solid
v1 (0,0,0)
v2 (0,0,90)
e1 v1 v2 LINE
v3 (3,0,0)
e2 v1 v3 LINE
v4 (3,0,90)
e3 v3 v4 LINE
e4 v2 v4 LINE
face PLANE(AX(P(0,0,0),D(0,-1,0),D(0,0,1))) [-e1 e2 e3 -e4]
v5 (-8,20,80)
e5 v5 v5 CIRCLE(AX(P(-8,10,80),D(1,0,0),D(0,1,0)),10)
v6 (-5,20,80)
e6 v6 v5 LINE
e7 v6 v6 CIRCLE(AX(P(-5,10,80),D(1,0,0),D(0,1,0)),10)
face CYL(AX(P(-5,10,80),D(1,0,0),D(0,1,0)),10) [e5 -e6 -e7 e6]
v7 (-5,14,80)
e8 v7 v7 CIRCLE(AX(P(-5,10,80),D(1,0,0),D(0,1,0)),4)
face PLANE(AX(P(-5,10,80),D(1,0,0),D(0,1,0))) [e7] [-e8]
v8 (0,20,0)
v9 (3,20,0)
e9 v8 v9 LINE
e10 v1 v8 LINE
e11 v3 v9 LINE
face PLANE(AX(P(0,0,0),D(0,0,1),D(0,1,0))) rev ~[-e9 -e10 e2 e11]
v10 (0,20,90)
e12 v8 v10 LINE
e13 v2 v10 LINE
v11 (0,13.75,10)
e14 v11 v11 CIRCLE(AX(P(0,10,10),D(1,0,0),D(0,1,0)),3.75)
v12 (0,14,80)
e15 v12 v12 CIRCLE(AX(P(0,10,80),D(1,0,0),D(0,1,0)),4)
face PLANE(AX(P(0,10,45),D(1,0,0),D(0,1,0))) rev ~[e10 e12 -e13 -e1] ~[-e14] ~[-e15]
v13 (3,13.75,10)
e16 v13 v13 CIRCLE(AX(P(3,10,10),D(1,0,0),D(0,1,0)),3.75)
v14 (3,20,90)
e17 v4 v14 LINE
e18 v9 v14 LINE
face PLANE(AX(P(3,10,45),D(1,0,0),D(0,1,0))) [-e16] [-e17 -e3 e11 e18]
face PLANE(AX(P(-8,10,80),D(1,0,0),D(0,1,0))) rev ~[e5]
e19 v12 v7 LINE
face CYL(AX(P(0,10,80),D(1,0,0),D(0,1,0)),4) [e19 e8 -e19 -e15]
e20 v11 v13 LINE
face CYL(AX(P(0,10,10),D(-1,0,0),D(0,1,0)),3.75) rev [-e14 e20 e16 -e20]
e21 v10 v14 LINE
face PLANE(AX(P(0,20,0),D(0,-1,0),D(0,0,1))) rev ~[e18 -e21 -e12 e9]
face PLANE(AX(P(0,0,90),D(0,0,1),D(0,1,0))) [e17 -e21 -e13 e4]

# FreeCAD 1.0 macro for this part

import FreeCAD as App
import Part
import Sketcher
from FreeCAD import Vector
Q = App.Units.Quantity

doc = App.newDocument("Part")
params = doc.addObject("Spreadsheet::Sheet", "Params")
for row, (alias, value) in enumerate([
    ("sketch1_diameter", "7.5 mm"),
    ("sketch1_width", "20 mm"),
    ("sketch1_height", "90 mm"),
    ("pad1_length", "3 mm"),
    ("sketch2_diameter", "8 mm"),
    ("pad2_length", "5 mm"),
    ("sketch3_diameter", "20 mm"),
    ("pad3_length", "3 mm"),
], start=1):
    params.set(f"A{row}", alias)
    params.set(f"B{row}", "=" + value)
    params.setAlias(f"B{row}", alias)

body = doc.addObject("PartDesign::Body", "Body")

# Sketch on YZ plane
sketch1 = body.newObject("Sketcher::SketchObject", "Sketch")
sketch1.AttachmentSupport = (doc.getObject("YZ_Plane"), [""])
sketch1.MapMode = "FlatFace"
sketch1.addGeometry([
    Part.LineSegment(Vector(0, 90, 0), Vector(0, 0, 0)),  # 0
    Part.LineSegment(Vector(0, 0, 0), Vector(20, 0, 0)),  # 1
    Part.LineSegment(Vector(20, 0, 0), Vector(20, 90, 0)),  # 2
    Part.LineSegment(Vector(20, 90, 0), Vector(0, 90, 0)),  # 3
    Part.Circle(Vector(10, 10, 0), Vector(0, 0, 1), 3.8),  # 4
], False)
sketch1.addConstraint([
    Sketcher.Constraint("Coincident", 0, 2, 1, 1),
    Sketcher.Constraint("Coincident", 1, 2, 2, 1),
    Sketcher.Constraint("Coincident", 2, 2, 3, 1),
    Sketcher.Constraint("Coincident", 3, 2, 0, 1),
    Sketcher.Constraint("Vertical", 0),
    Sketcher.Constraint("Horizontal", 1),
    Sketcher.Constraint("Vertical", 2),
    Sketcher.Constraint("Horizontal", 3),
    Sketcher.Constraint("Coincident", 0, 2, -1, 1),
    Sketcher.Constraint("Diameter", 4, Q("7.5 mm")),
    Sketcher.Constraint("DistanceX", 1, 1, 1, 2, Q("20 mm")),
    Sketcher.Constraint("DistanceY", 0, 2, 0, 1, Q("90 mm")),
    Sketcher.Constraint("DistanceX", -1, 1, 4, 3, Q("10 mm")),
    Sketcher.Constraint("DistanceY", -1, 1, 4, 3, Q("10 mm")),
])
sketch1.setExpression("Constraints[9]", "Params.sketch1_diameter")
sketch1.setExpression("Constraints[10]", "Params.sketch1_width")
sketch1.setExpression("Constraints[11]", "Params.sketch1_height")
pad1 = body.newObject("PartDesign::Pad", "Pad")
pad1.Profile = sketch1
pad1.setExpression("Length", "Params.pad1_length")

# Sketch on YZ plane
sketch2 = body.newObject("Sketcher::SketchObject", "Sketch001")
sketch2.AttachmentSupport = (doc.getObject("YZ_Plane"), [""])
sketch2.MapMode = "FlatFace"
sketch2.addGeometry(Part.Circle(Vector(10, 80, 0), Vector(0, 0, 1), 4), False)
sketch2.addConstraint([
    Sketcher.Constraint("Diameter", 0, Q("8 mm")),
    Sketcher.Constraint("DistanceX", -1, 1, 0, 3, Q("10 mm")),
    Sketcher.Constraint("DistanceY", -1, 1, 0, 3, Q("80 mm")),
])
sketch2.setExpression("Constraints[0]", "Params.sketch2_diameter")
pad2 = body.newObject("PartDesign::Pad", "Pad001")
pad2.Profile = sketch2
pad2.setExpression("Length", "Params.pad2_length")
pad2.Reversed = True

# Sketch on YZ plane
sketch3 = body.newObject("Sketcher::SketchObject", "Sketch002")
sketch3.AttachmentSupport = (doc.getObject("YZ_Plane"), [""])
sketch3.MapMode = "FlatFace"
sketch3.AttachmentOffset = App.Placement(Vector(0, 0, -5), App.Rotation())
sketch3.addGeometry(Part.Circle(Vector(10, 80, 0), Vector(0, 0, 1), 10), False)
sketch3.addConstraint([
    Sketcher.Constraint("Diameter", 0, Q("20 mm")),
    Sketcher.Constraint("DistanceX", -1, 1, 0, 3, Q("10 mm")),
    Sketcher.Constraint("DistanceY", -1, 1, 0, 3, Q("80 mm")),
])
sketch3.setExpression("Constraints[0]", "Params.sketch3_diameter")
pad3 = body.newObject("PartDesign::Pad", "Pad002")
pad3.Profile = sketch3
pad3.setExpression("Length", "Params.pad3_length")
pad3.Reversed = True

doc.recompute()
